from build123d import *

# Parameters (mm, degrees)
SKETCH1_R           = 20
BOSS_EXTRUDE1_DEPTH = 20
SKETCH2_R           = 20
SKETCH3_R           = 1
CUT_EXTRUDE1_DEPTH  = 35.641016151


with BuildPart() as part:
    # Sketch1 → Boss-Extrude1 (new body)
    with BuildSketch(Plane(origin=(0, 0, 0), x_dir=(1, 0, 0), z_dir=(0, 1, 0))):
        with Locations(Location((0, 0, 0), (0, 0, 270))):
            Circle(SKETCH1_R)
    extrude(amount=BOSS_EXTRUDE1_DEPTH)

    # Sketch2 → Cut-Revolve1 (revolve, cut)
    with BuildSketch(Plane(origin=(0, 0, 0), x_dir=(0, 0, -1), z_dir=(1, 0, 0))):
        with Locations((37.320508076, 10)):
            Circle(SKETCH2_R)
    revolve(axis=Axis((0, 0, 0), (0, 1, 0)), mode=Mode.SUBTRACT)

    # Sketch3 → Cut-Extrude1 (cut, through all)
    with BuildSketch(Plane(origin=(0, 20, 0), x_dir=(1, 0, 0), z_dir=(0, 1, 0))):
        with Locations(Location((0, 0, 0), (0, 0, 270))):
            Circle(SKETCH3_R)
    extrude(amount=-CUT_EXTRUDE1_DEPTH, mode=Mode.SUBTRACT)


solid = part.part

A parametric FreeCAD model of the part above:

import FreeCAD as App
import Part
import Sketcher
from FreeCAD import Vector
Q = App.Units.Quantity

doc = App.newDocument("Part")
body = doc.addObject("PartDesign::Body", "Body")

sketch1 = body.newObject("Sketcher::SketchObject", "Sketch")
sketch1.AttachmentSupport = (doc.getObject("XZ_Plane"), [""])
sketch1.MapMode = "FlatFace"
sketch1.addGeometry(Part.Circle(Vector(0, 0, 0), Vector(0, 0, 1), 20), False)
sketch1.addConstraint(Sketcher.Constraint("Coincident", 0, 3, -1, 1))
sketch1.addConstraint(Sketcher.Constraint("Diameter", 0, Q("40 mm")))
pad1 = body.newObject("PartDesign::Pad", "Pad")
pad1.Profile = sketch1
pad1.Length = 20
pad1.Reversed = True

sketch2 = body.newObject("Sketcher::SketchObject", "Sketch001")
sketch2.AttachmentSupport = (doc.getObject("YZ_Plane"), [""])
sketch2.MapMode = "FlatFace"
sketch2.addGeometry(Part.Circle(Vector(10, -37.320508, 0), Vector(0, 0, 1), 20), False)
sketch2.addConstraint(Sketcher.Constraint("Diameter", 0, Q("40 mm")))
sketch2.addConstraint(Sketcher.Constraint("DistanceX", -1, 1, 0, 3, Q("10 mm")))
sketch2.addConstraint(Sketcher.Constraint("DistanceY", 0, 3, -1, 1, Q("37.320508 mm")))
groove = body.newObject("PartDesign::Groove", "Groove")
groove.Profile = sketch2
groove.ReferenceAxis = (sketch2, ["H_Axis"])
groove.Angle = 360

sketch3 = body.newObject("Sketcher::SketchObject", "Sketch002")
sketch3.AttachmentSupport = (doc.getObject("XZ_Plane"), [""])
sketch3.MapMode = "FlatFace"
sketch3.AttachmentOffset = App.Placement(Vector(0, 0, -20), App.Rotation())
sketch3.addGeometry(Part.Circle(Vector(0, 0, 0), Vector(0, 0, 1), 1), False)
sketch3.addConstraint(Sketcher.Constraint("Coincident", 0, 3, -1, 1))
sketch3.addConstraint(Sketcher.Constraint("Diameter", 0, Q("2 mm")))
pocket1 = body.newObject("PartDesign::Pocket", "Pocket")
pocket1.Profile = sketch3
pocket1.Type = "ThroughAll"
pocket1.Reversed = True

doc.recompute()
